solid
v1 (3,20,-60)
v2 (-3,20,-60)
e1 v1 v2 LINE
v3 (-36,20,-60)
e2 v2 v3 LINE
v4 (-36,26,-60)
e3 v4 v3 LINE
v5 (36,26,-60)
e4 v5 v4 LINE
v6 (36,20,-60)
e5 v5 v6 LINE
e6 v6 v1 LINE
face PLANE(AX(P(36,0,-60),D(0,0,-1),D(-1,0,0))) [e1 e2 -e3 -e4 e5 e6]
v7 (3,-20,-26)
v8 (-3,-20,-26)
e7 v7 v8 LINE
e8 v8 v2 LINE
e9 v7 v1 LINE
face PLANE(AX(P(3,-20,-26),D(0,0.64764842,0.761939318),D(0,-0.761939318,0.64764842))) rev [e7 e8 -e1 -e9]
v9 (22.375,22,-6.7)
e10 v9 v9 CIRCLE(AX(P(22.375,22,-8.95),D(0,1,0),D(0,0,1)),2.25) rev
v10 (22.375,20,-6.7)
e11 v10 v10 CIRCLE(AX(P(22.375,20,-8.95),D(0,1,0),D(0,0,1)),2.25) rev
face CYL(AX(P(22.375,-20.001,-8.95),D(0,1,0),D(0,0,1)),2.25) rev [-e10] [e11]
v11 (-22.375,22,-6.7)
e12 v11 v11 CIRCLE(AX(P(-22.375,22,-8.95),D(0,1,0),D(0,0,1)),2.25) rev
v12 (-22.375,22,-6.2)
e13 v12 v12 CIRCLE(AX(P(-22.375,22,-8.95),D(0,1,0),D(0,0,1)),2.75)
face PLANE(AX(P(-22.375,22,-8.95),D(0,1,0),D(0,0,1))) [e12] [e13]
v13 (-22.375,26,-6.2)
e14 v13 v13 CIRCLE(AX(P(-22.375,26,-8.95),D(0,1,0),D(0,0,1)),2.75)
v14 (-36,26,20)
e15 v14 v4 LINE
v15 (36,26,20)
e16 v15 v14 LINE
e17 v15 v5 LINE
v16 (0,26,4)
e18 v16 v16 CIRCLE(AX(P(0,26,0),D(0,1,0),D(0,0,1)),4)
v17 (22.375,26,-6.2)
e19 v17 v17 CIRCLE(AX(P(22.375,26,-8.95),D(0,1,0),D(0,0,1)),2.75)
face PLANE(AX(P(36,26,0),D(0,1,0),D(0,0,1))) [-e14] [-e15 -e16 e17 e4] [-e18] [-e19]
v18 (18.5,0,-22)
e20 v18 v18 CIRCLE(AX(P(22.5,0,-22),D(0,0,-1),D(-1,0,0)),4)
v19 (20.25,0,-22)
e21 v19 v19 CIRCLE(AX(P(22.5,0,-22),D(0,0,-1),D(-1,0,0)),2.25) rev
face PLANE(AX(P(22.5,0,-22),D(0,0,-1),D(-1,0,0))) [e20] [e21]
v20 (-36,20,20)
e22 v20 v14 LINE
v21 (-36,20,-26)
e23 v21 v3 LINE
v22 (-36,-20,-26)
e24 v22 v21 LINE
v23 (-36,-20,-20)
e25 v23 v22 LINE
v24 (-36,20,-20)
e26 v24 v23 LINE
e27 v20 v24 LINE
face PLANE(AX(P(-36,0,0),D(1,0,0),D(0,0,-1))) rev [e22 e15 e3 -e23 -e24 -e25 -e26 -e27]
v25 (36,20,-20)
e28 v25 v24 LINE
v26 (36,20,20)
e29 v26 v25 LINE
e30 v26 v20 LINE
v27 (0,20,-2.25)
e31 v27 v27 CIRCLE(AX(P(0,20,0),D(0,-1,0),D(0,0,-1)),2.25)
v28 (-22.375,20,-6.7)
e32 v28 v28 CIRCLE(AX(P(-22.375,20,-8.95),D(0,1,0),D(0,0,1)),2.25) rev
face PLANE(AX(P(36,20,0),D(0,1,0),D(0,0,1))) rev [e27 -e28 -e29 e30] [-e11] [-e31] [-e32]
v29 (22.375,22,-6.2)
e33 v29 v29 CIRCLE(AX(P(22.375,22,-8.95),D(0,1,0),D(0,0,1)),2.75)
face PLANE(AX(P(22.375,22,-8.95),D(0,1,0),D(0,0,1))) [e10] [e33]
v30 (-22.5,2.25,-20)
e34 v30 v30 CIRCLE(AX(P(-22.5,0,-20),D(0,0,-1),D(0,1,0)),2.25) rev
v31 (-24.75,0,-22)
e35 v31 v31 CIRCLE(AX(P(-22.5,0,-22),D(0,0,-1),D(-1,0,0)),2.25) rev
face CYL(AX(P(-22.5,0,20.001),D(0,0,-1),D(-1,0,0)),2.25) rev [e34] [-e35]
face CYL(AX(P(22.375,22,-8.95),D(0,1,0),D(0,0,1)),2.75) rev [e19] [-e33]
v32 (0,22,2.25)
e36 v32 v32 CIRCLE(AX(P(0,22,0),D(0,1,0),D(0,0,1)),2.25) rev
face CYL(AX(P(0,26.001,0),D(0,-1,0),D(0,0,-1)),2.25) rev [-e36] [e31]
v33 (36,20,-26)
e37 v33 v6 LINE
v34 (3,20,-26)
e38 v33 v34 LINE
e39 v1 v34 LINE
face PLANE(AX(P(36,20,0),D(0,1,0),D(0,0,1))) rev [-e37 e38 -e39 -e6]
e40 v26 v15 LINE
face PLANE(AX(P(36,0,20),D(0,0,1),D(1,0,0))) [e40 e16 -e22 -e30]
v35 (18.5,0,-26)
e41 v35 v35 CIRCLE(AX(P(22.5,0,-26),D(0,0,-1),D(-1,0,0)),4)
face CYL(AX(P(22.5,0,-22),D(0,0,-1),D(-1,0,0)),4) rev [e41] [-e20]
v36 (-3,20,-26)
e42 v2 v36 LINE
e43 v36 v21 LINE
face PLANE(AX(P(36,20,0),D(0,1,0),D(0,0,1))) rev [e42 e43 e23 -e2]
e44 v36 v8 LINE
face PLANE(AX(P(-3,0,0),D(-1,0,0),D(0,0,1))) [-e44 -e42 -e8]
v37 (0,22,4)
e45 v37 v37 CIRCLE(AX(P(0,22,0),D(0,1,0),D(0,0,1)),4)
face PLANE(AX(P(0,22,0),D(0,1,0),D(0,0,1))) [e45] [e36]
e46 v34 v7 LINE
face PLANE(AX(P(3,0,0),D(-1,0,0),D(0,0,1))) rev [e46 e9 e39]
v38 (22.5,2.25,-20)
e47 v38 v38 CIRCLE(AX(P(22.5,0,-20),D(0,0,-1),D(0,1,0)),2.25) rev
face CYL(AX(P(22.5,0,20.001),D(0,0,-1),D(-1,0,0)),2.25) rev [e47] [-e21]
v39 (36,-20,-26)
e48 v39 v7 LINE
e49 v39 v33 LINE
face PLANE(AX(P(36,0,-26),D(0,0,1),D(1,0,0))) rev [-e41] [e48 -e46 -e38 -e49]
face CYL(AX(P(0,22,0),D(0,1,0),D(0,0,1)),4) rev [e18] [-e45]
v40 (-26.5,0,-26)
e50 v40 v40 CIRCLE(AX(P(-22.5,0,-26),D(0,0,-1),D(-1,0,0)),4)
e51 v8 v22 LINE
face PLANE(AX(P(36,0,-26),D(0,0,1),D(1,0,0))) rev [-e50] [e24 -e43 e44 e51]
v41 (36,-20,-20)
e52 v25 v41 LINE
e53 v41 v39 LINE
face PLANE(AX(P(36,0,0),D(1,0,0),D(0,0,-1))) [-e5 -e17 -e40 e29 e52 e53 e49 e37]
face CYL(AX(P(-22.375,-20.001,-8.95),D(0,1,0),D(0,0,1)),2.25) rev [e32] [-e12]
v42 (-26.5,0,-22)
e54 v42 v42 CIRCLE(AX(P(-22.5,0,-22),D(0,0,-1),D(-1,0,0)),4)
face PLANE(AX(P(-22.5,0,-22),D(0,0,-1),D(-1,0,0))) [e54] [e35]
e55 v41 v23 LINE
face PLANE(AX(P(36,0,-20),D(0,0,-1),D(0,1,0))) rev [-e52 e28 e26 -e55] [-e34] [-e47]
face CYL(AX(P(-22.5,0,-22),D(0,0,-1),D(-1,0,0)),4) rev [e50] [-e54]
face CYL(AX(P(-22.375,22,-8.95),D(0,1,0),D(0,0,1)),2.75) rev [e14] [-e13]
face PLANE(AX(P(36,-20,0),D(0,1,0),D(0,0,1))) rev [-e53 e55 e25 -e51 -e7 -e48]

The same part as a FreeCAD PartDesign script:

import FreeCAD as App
import Part
import Sketcher

V = App.Vector


def add_polygon(sketch, points):
    """Adds a closed chain of lines whose ends are joined by coincident constraints."""
    first, n = sketch.GeometryCount, len(points)
    for a, b in zip(points, points[1:] + points[:1]):
        sketch.addGeometry(Part.LineSegment(App.Vector(*a, 0), App.Vector(*b, 0)), False)
    for i in range(n):
        sketch.addConstraint(Sketcher.Constraint("Coincident", first + i, 2, first + (i + 1) % n, 1))

doc = App.newDocument("Part")
body = doc.addObject("PartDesign::Body", "Body")

sketch1 = body.newObject("Sketcher::SketchObject", "Sketch")
sketch1.AttachmentSupport = (doc.getObject("YZ_Plane"), [""])
sketch1.MapMode = "FlatFace"
add_polygon(sketch1, [(20, 20), (20, -20), (-20, -20), (-20, -26), (20, -26), (20, -60), (26, -60), (26, 20)])
sketch1.addConstraint(Sketcher.Constraint("Vertical", 0))
sketch1.addConstraint(Sketcher.Constraint("Horizontal", 1))
sketch1.addConstraint(Sketcher.Constraint("Vertical", 2))
sketch1.addConstraint(Sketcher.Constraint("Horizontal", 3))
sketch1.addConstraint(Sketcher.Constraint("Vertical", 4))
sketch1.addConstraint(Sketcher.Constraint("Horizontal", 5))
sketch1.addConstraint(Sketcher.Constraint("Vertical", 6))
sketch1.addConstraint(Sketcher.Constraint("Horizontal", 7))
sketch1.addConstraint(Sketcher.Constraint("Symmetric", 1, 2, 7, 2, -1, 1))
sketch1.addConstraint(Sketcher.Constraint("Vertical", 0, 2, 3, 2))
sketch1.addConstraint(Sketcher.Constraint("Equal", 3, 0))
sketch1.addConstraint(Sketcher.Constraint("Equal", 7, 2))
sketch1.addConstraint(Sketcher.Constraint("DistanceX", 1, 2, 1, 1, 40.0))
sketch1.addConstraint(Sketcher.Constraint("DistanceX", 5, 1, 5, 2, 6.0))
sketch1.addConstraint(Sketcher.Constraint("DistanceY", 4, 2, 4, 1, 34.0))
pad1 = body.newObject("PartDesign::Pad", "Pad")
pad1.Profile = sketch1
pad1.Length = 72
pad1.Midplane = True

sketch2 = body.newObject("Sketcher::SketchObject", "Sketch001")
sketch2.AttachmentSupport = (doc.getObject("XY_Plane"), [""])
sketch2.MapMode = "FlatFace"
sketch2.AttachmentOffset = App.Placement(V(0, 0, -26), App.Rotation())
sketch2.addGeometry(Part.Circle(V(22.5, 0, 0), V(0, 0, 1), 2.2), False)
sketch2.addConstraint(Sketcher.Constraint("PointOnObject", 0, 3, -1))
sketch2.addConstraint(Sketcher.Constraint("Diameter", 0, 4.5))
sketch2.addConstraint(Sketcher.Constraint("DistanceX", -1, 1, 0, 3, 22.5))
pocket1 = body.newObject("PartDesign::Pocket", "Pocket")
pocket1.Profile = sketch2
pocket1.Type = "UpToFirst"
pocket1.Reversed = True

sketch3 = body.newObject("Sketcher::SketchObject", "Sketch002")
sketch3.AttachmentSupport = (doc.getObject("XY_Plane"), [""])
sketch3.MapMode = "FlatFace"
sketch3.AttachmentOffset = App.Placement(V(0, 0, -26), App.Rotation())
sketch3.addGeometry(Part.Circle(V(-22.5, 0, 0), V(0, 0, 1), 2.2), False)
sketch3.addConstraint(Sketcher.Constraint("PointOnObject", 0, 3, -1))
sketch3.addConstraint(Sketcher.Constraint("Diameter", 0, 4.5))
sketch3.addConstraint(Sketcher.Constraint("DistanceX", 0, 3, -1, 1, 22.5))
pocket2 = body.newObject("PartDesign::Pocket", "Pocket001")
pocket2.Profile = sketch3
pocket2.Type = "UpToFirst"
pocket2.Reversed = True

sketch4 = body.newObject("Sketcher::SketchObject", "Sketch003")
sketch4.AttachmentSupport = (doc.getObject("XZ_Plane"), [""])
sketch4.MapMode = "FlatFace"
sketch4.AttachmentOffset = App.Placement(V(0, 0, -20), App.Rotation())
sketch4.addGeometry(Part.Circle(V(0, 0, 0), V(0, 0, 1), 2.2), False)
sketch4.addConstraint(Sketcher.Constraint("Coincident", 0, 3, -1, 1))
sketch4.addConstraint(Sketcher.Constraint("Diameter", 0, 4.5))
pocket3 = body.newObject("PartDesign::Pocket", "Pocket002")
pocket3.Profile = sketch4
pocket3.Type = "UpToFirst"

sketch5 = body.newObject("Sketcher::SketchObject", "Sketch004")
sketch5.AttachmentSupport = (doc.getObject("XY_Plane"), [""])
sketch5.MapMode = "FlatFace"
sketch5.AttachmentOffset = App.Placement(V(0, 0, -26), App.Rotation())
sketch5.addGeometry(Part.Circle(V(22.5, 0, 0), V(0, 0, 1), 4), False)
sketch5.addGeometry(Part.Circle(V(-22.5, 0, 0), V(0, 0, 1), 4), False)
sketch5.addConstraint(Sketcher.Constraint("Equal", 0, 1))
sketch5.addConstraint(Sketcher.Constraint("Symmetric", 0, 3, 1, 3, -1, 1))
sketch5.addConstraint(Sketcher.Constraint("PointOnObject", 0, 3, -1))
sketch5.addConstraint(Sketcher.Constraint("Diameter", 0, 8.0))
sketch5.addConstraint(Sketcher.Constraint("DistanceX", 1, 3, 0, 3, 45.0))
pocket4 = body.newObject("PartDesign::Pocket", "Pocket003")
pocket4.Profile = sketch5
pocket4.Length = 4
pocket4.Reversed = True

sketch6 = body.newObject("Sketcher::SketchObject", "Sketch005")
sketch6.AttachmentSupport = (doc.getObject("XZ_Plane"), [""])
sketch6.MapMode = "FlatFace"
sketch6.AttachmentOffset = App.Placement(V(0, 0, -26), App.Rotation())
sketch6.addGeometry(Part.Circle(V(0, 0, 0), V(0, 0, 1), 4), False)
sketch6.addConstraint(Sketcher.Constraint("Coincident", 0, 3, -1, 1))
sketch6.addConstraint(Sketcher.Constraint("Diameter", 0, 8.0))
pocket5 = body.newObject("PartDesign::Pocket", "Pocket004")
pocket5.Profile = sketch6
pocket5.Length = 4
pocket5.Reversed = True

sketch7 = body.newObject("Sketcher::SketchObject", "Sketch006")
sketch7.AttachmentSupport = (doc.getObject("XZ_Plane"), [""])
sketch7.MapMode = "FlatFace"
sketch7.AttachmentOffset = App.Placement(V(0, 0, -26), App.Rotation())
sketch7.addGeometry(Part.Circle(V(-22.4, -8.9, 0), V(0, 0, 1), 2.2), False)
sketch7.addConstraint(Sketcher.Constraint("Diameter", 0, 4.5))
sketch7.addConstraint(Sketcher.Constraint("DistanceY", 0, 3, -1, 1, 8.95))
sketch7.addConstraint(Sketcher.Constraint("DistanceX", 0, 3, -1, 1, 22.375))
pocket6 = body.newObject("PartDesign::Pocket", "Pocket005")
pocket6.Profile = sketch7
pocket6.Type = "UpToFirst"
pocket6.Reversed = True

sketch8 = body.newObject("Sketcher::SketchObject", "Sketch007")
sketch8.AttachmentSupport = (doc.getObject("XZ_Plane"), [""])
sketch8.MapMode = "FlatFace"
sketch8.AttachmentOffset = App.Placement(V(0, 0, -26), App.Rotation())
sketch8.addGeometry(Part.Circle(V(22.4, -8.9, 0), V(0, 0, 1), 2.2), False)
sketch8.addConstraint(Sketcher.Constraint("Diameter", 0, 4.5))
sketch8.addConstraint(Sketcher.Constraint("DistanceY", 0, 3, -1, 1, 8.95))
sketch8.addConstraint(Sketcher.Constraint("DistanceX", -1, 1, 0, 3, 22.375))
pocket7 = body.newObject("PartDesign::Pocket", "Pocket006")
pocket7.Profile = sketch8
pocket7.Type = "UpToFirst"
pocket7.Reversed = True

sketch9 = body.newObject("Sketcher::SketchObject", "Sketch008")
sketch9.AttachmentSupport = (doc.getObject("XZ_Plane"), [""])
sketch9.MapMode = "FlatFace"
sketch9.AttachmentOffset = App.Placement(V(0, 0, -26), App.Rotation())
sketch9.addGeometry(Part.Circle(V(-22.4, -8.9, 0), V(0, 0, 1), 2.8), False)
sketch9.addGeometry(Part.Circle(V(22.4, -8.9, 0), V(0, 0, 1), 2.8), False)
sketch9.addConstraint(Sketcher.Constraint("Equal", 0, 1))
sketch9.addConstraint(Sketcher.Constraint("Symmetric", 0, 3, 1, 3, -2))
sketch9.addConstraint(Sketcher.Constraint("Diameter", 0, 5.5))
sketch9.addConstraint(Sketcher.Constraint("DistanceY", 0, 3, -1, 1, 8.95))
sketch9.addConstraint(Sketcher.Constraint("DistanceX", 0, 3, 1, 3, 44.75))
pocket8 = body.newObject("PartDesign::Pocket", "Pocket007")
pocket8.Profile = sketch9
pocket8.Length = 4
pocket8.Reversed = True

sketch10 = body.newObject("Sketcher::SketchObject", "Sketch009")
sketch10.AttachmentSupport = (doc.getObject("YZ_Plane"), [""])
sketch10.MapMode = "FlatFace"
add_polygon(sketch10, [(-20, -26), (20, -60), (20, -26)])
sketch10.addConstraint(Sketcher.Constraint("Vertical", 1))
sketch10.addConstraint(Sketcher.Constraint("Horizontal", 2))
sketch10.addConstraint(Sketcher.Constraint("DistanceX", 2, 2, 2, 1, 40.0))
sketch10.addConstraint(Sketcher.Constraint("DistanceY", 1, 1, 1, 2, 34.0))
sketch10.addConstraint(Sketcher.Constraint("DistanceX", -1, 1, 0, 2, 20.0))
sketch10.addConstraint(Sketcher.Constraint("DistanceY", 0, 2, -1, 1, 60.0))
pad2 = body.newObject("PartDesign::Pad", "Pad001")
pad2.Profile = sketch10
pad2.Length = 6
pad2.Midplane = True

doc.recompute()
